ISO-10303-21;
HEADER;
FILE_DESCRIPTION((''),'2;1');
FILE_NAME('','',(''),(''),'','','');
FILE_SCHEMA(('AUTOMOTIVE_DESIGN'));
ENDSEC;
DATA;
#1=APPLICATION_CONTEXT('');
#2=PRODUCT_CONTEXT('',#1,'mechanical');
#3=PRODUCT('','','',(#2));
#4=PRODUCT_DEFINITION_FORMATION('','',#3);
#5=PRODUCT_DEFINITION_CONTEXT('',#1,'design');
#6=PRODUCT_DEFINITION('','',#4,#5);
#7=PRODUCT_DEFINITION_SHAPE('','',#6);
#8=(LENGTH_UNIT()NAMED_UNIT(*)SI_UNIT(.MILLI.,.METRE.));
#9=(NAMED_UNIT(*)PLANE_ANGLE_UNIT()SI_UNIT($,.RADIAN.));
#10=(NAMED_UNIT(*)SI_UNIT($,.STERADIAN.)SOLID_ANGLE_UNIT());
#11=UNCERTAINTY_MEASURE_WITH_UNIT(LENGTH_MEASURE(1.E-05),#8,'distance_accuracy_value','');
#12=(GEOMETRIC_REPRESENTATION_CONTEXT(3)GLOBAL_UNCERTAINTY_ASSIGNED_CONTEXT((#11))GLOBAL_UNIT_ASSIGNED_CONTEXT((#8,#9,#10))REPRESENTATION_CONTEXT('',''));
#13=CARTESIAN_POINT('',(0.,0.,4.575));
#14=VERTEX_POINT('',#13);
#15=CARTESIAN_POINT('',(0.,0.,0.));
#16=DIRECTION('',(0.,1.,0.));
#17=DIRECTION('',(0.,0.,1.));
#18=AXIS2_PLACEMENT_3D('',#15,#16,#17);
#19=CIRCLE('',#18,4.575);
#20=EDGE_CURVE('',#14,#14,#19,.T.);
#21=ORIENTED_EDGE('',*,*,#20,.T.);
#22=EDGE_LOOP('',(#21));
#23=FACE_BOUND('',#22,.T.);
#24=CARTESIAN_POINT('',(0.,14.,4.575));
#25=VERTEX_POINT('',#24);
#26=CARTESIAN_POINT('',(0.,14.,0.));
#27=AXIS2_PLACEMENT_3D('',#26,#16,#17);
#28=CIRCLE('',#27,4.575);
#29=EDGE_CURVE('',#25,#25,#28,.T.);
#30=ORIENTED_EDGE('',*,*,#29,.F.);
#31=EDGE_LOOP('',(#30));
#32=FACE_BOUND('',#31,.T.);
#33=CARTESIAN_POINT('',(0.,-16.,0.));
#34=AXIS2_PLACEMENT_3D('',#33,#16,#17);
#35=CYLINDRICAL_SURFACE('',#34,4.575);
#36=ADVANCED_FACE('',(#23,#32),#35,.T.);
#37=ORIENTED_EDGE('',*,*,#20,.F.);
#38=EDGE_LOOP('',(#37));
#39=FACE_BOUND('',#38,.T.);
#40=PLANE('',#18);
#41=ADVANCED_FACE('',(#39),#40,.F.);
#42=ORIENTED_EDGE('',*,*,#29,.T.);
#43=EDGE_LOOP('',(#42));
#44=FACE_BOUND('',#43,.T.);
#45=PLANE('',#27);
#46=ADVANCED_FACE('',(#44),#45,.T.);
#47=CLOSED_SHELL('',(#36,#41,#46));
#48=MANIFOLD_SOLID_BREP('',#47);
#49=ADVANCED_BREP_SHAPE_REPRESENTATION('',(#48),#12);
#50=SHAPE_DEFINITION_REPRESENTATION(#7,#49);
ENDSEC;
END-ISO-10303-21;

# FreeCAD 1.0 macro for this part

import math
import FreeCAD as App
import Part
import Sketcher


def edges_at(feature, points):
    """Names of the edges that pass closest to the given points."""
    edges = feature.Shape.Edges
    near = lambda p: min(range(len(edges)), key=lambda i: edges[i].distToShape(Part.Vertex(*p))[0])
    return sorted({f"Edge{near(p) + 1}" for p in points})

doc = App.newDocument("Part")
body = doc.addObject("PartDesign::Body", "Body")

sketch1 = body.newObject("Sketcher::SketchObject", "Sketch")
sketch1.AttachmentSupport = (doc.getObject("XZ_Plane"), [""])
sketch1.MapMode = "FlatFace"
sketch1.addGeometry(Part.Circle(App.Vector(0, 0, 0), App.Vector(0, 0, 1), 4.7), False)
sketch1.addConstraint(Sketcher.Constraint("Coincident", 0, 3, -1, 1))
sketch1.addConstraint(Sketcher.Constraint("Diameter", 0, 9.3))
pad1 = body.newObject("PartDesign::Pad", "Pad")
pad1.Profile = sketch1
pad1.Length = 12
pad1.Reversed = True

sketch2 = body.newObject("Sketcher::SketchObject", "Sketch001")
sketch2.AttachmentSupport = (doc.getObject("XZ_Plane"), [""])
sketch2.MapMode = "FlatFace"
sketch2.AttachmentOffset = App.Placement(App.Vector(0, 0, -12), App.Rotation())
sketch2.addGeometry(Part.Circle(App.Vector(0, 0, 0), App.Vector(0, 0, 1), 18), False)
sketch2.addConstraint(Sketcher.Constraint("Coincident", 0, 3, -1, 1))
sketch2.addConstraint(Sketcher.Constraint("Diameter", 0, 35.0))
pad2 = body.newObject("PartDesign::Pad", "Pad001")
pad2.Profile = sketch2
pad2.Length = 2
pad2.Reversed = True

sketch3 = body.newObject("Sketcher::SketchObject", "Sketch002")
sketch3.AttachmentSupport = (doc.getObject("XZ_Plane"), [""])
sketch3.MapMode = "FlatFace"
sketch3.AttachmentOffset = App.Placement(App.Vector(0, 0, -14), App.Rotation())
sketch3.addGeometry(Part.LineSegment(App.Vector(5, -6, 0), App.Vector(5, 6, 0)), False)
sketch3.addGeometry(Part.LineSegment(App.Vector(5, 6, 0), App.Vector(10, 6, 0)), False)
sketch3.addGeometry(Part.LineSegment(App.Vector(10, 6, 0), App.Vector(10, -6, 0)), False)
sketch3.addGeometry(Part.LineSegment(App.Vector(10, -6, 0), App.Vector(5, -6, 0)), False)
sketch3.addConstraint(Sketcher.Constraint("Coincident", 0, 2, 1, 1))
sketch3.addConstraint(Sketcher.Constraint("Coincident", 1, 2, 2, 1))
sketch3.addConstraint(Sketcher.Constraint("Coincident", 2, 2, 3, 1))
sketch3.addConstraint(Sketcher.Constraint("Coincident", 3, 2, 0, 1))
sketch3.addConstraint(Sketcher.Constraint("Vertical", 0))
sketch3.addConstraint(Sketcher.Constraint("Horizontal", 1))
sketch3.addConstraint(Sketcher.Constraint("Vertical", 2))
sketch3.addConstraint(Sketcher.Constraint("Horizontal", 3))
sketch3.addConstraint(Sketcher.Constraint("DistanceX", 1, 1, 1, 2, 5.0))
sketch3.addConstraint(Sketcher.Constraint("DistanceY", 0, 1, 0, 2, 13.0))
sketch3.addConstraint(Sketcher.Constraint("DistanceX", -1, 1, 0, 2, 5.0))
sketch3.addConstraint(Sketcher.Constraint("DistanceY", -1, 1, 0, 2, 6.5))
pad3 = body.newObject("PartDesign::Pad", "Pad002")
pad3.Profile = sketch3
pad3.Length = 12
pad3.Reversed = True
doc.recompute()

mirrored = body.newObject("PartDesign::Mirrored", "Mirrored")
mirrored.Originals = [pad3]
mirrored.MirrorPlane = (doc.getObject("YZ_Plane"), [""])
body.Tip = mirrored
doc.recompute()

fillet = body.newObject("PartDesign::Fillet", "Fillet")
fillet.Base = (mirrored, edges_at(mirrored, [
    (7.5, 26, -6.5),
    (7.5, 26, 6.5),
    (-7.5, 26, 6.5),
    (-7.5, 26, -6.5),
]))
fillet.Radius = 4
doc.recompute()

fillet2 = body.newObject("PartDesign::Fillet", "Fillet001")
fillet2.Base = (fillet, edges_at(fillet, [
    (7.5, 14, 6.5),
    (7.5, 14, -6.5),
    (-7.5, 14, -6.5),
    (-7.5, 14, 6.5),
]))
fillet2.Radius = 4

sketch4 = body.newObject("Sketcher::SketchObject", "Sketch003")
sketch4.AttachmentSupport = (doc.getObject("XZ_Plane"), [""])
sketch4.MapMode = "FlatFace"
sketch4.AttachmentOffset = App.Placement(App.Vector(0, 0, -14), App.Rotation())
sketch4.addGeometry(Part.LineSegment(App.Vector(10, -14, 0), App.Vector(10, 14, 0)), False)
sketch4.addGeometry(Part.ArcOfCircle(Part.Circle(App.Vector(0, 0, 0), App.Vector(0, 0, 1), 18), math.radians(0), math.radians(55)), False)
sketch4.addGeometry(Part.ArcOfCircle(Part.Circle(App.Vector(0, 0, 0), App.Vector(0, 0, 1), 18), math.radians(-55), math.radians(0)), False)
sketch4.addConstraint(Sketcher.Constraint("Coincident", 0, 2, 1, 2))
sketch4.addConstraint(Sketcher.Constraint("Tangent", 1, 1, 2, 2))
sketch4.addConstraint(Sketcher.Constraint("Coincident", 2, 1, 0, 1))
sketch4.addConstraint(Sketcher.Constraint("Vertical", 0))
sketch4.addConstraint(Sketcher.Constraint("Coincident", 1, 3, -1, 1))
sketch4.addConstraint(Sketcher.Constraint("Equal", 1, 2))
sketch4.addConstraint(Sketcher.Constraint("PointOnObject", 1, 1, -1))
sketch4.addConstraint(Sketcher.Constraint("Radius", 1, 17.5))
sketch4.addConstraint(Sketcher.Constraint("DistanceX", -1, 1, 0, 2, 10.0))
pocket1 = body.newObject("PartDesign::Pocket", "Pocket")
pocket1.Profile = sketch4
pocket1.Type = "ThroughAll"
pocket1.Reversed = True
doc.recompute()

mirrored2 = body.newObject("PartDesign::Mirrored", "Mirrored001")
mirrored2.Originals = [pocket1]
mirrored2.MirrorPlane = (doc.getObject("YZ_Plane"), [""])
body.Tip = mirrored2

sketch5 = body.newObject("Sketcher::SketchObject", "Sketch004")
sketch5.AttachmentSupport = (doc.getObject("YZ_Plane"), [""])
sketch5.MapMode = "FlatFace"
sketch5.AttachmentOffset = App.Placement(App.Vector(0, 0, 10), App.Rotation())
sketch5.addGeometry(Part.Circle(App.Vector(20, 0, 0), App.Vector(0, 0, 1), 2), False)
sketch5.addConstraint(Sketcher.Constraint("PointOnObject", 0, 3, -1))
sketch5.addConstraint(Sketcher.Constraint("Diameter", 0, 4.1))
sketch5.addConstraint(Sketcher.Constraint("DistanceX", -1, 1, 0, 3, 20.0))
pocket2 = body.newObject("PartDesign::Pocket", "Pocket001")
pocket2.Profile = sketch5
pocket2.Length = 70
doc.recompute()

fillet3 = body.newObject("PartDesign::Fillet", "Fillet002")
fillet3.Base = (pocket2, edges_at(pocket2, [
    (10, 13, -14.361),
    (10, 13, 14.361),
    (-10, 13, 14.361),
    (-10, 13, -14.361),
]))
fillet3.Radius = 4

sketch6 = body.newObject("Sketcher::SketchObject", "Sketch005")
sketch6.AttachmentSupport = (doc.getObject("XZ_Plane"), [""])
sketch6.MapMode = "FlatFace"
sketch6.AttachmentOffset = App.Placement(App.Vector(0, 0, -12), App.Rotation())
sketch6.addGeometry(Part.Circle(App.Vector(0, 0, 0), App.Vector(0, 0, 1), 24.6), False)
sketch6.addGeometry(Part.Circle(App.Vector(0, 0, 0), App.Vector(0, 0, 1), 4.7), False)
sketch6.addConstraint(Sketcher.Constraint("Coincident", 0, 3, -1, 1))
sketch6.addConstraint(Sketcher.Constraint("Coincident", 1, 3, -1, 1))
sketch6.addConstraint(Sketcher.Constraint("Diameter", 0, 49.3))
sketch6.addConstraint(Sketcher.Constraint("Diameter", 1, 9.3))
pocket3 = body.newObject("PartDesign::Pocket", "Pocket002")
pocket3.Profile = sketch6
pocket3.Type = "ThroughAll"

sketch7 = body.newObject("Sketcher::SketchObject", "Sketch006")
sketch7.AttachmentSupport = (doc.getObject("XZ_Plane"), [""])
sketch7.MapMode = "FlatFace"
sketch7.AttachmentOffset = App.Placement(App.Vector(0, 0, -14), App.Rotation())
sketch7.addGeometry(Part.Circle(App.Vector(0, 0, 0), App.Vector(0, 0, 1), 24.6), False)
sketch7.addGeometry(Part.Circle(App.Vector(0, 0, 0), App.Vector(0, 0, 1), 4.6), False)
sketch7.addConstraint(Sketcher.Constraint("Coincident", 0, 3, -1, 1))
sketch7.addConstraint(Sketcher.Constraint("Coincident", 1, 3, -1, 1))
sketch7.addConstraint(Sketcher.Constraint("Diameter", 0, 49.15))
sketch7.addConstraint(Sketcher.Constraint("Diameter", 1, 9.15))
pocket4 = body.newObject("PartDesign::Pocket", "Pocket003")
pocket4.Profile = sketch7
pocket4.Length = 30
pocket4.Reversed = True

doc.recompute()
